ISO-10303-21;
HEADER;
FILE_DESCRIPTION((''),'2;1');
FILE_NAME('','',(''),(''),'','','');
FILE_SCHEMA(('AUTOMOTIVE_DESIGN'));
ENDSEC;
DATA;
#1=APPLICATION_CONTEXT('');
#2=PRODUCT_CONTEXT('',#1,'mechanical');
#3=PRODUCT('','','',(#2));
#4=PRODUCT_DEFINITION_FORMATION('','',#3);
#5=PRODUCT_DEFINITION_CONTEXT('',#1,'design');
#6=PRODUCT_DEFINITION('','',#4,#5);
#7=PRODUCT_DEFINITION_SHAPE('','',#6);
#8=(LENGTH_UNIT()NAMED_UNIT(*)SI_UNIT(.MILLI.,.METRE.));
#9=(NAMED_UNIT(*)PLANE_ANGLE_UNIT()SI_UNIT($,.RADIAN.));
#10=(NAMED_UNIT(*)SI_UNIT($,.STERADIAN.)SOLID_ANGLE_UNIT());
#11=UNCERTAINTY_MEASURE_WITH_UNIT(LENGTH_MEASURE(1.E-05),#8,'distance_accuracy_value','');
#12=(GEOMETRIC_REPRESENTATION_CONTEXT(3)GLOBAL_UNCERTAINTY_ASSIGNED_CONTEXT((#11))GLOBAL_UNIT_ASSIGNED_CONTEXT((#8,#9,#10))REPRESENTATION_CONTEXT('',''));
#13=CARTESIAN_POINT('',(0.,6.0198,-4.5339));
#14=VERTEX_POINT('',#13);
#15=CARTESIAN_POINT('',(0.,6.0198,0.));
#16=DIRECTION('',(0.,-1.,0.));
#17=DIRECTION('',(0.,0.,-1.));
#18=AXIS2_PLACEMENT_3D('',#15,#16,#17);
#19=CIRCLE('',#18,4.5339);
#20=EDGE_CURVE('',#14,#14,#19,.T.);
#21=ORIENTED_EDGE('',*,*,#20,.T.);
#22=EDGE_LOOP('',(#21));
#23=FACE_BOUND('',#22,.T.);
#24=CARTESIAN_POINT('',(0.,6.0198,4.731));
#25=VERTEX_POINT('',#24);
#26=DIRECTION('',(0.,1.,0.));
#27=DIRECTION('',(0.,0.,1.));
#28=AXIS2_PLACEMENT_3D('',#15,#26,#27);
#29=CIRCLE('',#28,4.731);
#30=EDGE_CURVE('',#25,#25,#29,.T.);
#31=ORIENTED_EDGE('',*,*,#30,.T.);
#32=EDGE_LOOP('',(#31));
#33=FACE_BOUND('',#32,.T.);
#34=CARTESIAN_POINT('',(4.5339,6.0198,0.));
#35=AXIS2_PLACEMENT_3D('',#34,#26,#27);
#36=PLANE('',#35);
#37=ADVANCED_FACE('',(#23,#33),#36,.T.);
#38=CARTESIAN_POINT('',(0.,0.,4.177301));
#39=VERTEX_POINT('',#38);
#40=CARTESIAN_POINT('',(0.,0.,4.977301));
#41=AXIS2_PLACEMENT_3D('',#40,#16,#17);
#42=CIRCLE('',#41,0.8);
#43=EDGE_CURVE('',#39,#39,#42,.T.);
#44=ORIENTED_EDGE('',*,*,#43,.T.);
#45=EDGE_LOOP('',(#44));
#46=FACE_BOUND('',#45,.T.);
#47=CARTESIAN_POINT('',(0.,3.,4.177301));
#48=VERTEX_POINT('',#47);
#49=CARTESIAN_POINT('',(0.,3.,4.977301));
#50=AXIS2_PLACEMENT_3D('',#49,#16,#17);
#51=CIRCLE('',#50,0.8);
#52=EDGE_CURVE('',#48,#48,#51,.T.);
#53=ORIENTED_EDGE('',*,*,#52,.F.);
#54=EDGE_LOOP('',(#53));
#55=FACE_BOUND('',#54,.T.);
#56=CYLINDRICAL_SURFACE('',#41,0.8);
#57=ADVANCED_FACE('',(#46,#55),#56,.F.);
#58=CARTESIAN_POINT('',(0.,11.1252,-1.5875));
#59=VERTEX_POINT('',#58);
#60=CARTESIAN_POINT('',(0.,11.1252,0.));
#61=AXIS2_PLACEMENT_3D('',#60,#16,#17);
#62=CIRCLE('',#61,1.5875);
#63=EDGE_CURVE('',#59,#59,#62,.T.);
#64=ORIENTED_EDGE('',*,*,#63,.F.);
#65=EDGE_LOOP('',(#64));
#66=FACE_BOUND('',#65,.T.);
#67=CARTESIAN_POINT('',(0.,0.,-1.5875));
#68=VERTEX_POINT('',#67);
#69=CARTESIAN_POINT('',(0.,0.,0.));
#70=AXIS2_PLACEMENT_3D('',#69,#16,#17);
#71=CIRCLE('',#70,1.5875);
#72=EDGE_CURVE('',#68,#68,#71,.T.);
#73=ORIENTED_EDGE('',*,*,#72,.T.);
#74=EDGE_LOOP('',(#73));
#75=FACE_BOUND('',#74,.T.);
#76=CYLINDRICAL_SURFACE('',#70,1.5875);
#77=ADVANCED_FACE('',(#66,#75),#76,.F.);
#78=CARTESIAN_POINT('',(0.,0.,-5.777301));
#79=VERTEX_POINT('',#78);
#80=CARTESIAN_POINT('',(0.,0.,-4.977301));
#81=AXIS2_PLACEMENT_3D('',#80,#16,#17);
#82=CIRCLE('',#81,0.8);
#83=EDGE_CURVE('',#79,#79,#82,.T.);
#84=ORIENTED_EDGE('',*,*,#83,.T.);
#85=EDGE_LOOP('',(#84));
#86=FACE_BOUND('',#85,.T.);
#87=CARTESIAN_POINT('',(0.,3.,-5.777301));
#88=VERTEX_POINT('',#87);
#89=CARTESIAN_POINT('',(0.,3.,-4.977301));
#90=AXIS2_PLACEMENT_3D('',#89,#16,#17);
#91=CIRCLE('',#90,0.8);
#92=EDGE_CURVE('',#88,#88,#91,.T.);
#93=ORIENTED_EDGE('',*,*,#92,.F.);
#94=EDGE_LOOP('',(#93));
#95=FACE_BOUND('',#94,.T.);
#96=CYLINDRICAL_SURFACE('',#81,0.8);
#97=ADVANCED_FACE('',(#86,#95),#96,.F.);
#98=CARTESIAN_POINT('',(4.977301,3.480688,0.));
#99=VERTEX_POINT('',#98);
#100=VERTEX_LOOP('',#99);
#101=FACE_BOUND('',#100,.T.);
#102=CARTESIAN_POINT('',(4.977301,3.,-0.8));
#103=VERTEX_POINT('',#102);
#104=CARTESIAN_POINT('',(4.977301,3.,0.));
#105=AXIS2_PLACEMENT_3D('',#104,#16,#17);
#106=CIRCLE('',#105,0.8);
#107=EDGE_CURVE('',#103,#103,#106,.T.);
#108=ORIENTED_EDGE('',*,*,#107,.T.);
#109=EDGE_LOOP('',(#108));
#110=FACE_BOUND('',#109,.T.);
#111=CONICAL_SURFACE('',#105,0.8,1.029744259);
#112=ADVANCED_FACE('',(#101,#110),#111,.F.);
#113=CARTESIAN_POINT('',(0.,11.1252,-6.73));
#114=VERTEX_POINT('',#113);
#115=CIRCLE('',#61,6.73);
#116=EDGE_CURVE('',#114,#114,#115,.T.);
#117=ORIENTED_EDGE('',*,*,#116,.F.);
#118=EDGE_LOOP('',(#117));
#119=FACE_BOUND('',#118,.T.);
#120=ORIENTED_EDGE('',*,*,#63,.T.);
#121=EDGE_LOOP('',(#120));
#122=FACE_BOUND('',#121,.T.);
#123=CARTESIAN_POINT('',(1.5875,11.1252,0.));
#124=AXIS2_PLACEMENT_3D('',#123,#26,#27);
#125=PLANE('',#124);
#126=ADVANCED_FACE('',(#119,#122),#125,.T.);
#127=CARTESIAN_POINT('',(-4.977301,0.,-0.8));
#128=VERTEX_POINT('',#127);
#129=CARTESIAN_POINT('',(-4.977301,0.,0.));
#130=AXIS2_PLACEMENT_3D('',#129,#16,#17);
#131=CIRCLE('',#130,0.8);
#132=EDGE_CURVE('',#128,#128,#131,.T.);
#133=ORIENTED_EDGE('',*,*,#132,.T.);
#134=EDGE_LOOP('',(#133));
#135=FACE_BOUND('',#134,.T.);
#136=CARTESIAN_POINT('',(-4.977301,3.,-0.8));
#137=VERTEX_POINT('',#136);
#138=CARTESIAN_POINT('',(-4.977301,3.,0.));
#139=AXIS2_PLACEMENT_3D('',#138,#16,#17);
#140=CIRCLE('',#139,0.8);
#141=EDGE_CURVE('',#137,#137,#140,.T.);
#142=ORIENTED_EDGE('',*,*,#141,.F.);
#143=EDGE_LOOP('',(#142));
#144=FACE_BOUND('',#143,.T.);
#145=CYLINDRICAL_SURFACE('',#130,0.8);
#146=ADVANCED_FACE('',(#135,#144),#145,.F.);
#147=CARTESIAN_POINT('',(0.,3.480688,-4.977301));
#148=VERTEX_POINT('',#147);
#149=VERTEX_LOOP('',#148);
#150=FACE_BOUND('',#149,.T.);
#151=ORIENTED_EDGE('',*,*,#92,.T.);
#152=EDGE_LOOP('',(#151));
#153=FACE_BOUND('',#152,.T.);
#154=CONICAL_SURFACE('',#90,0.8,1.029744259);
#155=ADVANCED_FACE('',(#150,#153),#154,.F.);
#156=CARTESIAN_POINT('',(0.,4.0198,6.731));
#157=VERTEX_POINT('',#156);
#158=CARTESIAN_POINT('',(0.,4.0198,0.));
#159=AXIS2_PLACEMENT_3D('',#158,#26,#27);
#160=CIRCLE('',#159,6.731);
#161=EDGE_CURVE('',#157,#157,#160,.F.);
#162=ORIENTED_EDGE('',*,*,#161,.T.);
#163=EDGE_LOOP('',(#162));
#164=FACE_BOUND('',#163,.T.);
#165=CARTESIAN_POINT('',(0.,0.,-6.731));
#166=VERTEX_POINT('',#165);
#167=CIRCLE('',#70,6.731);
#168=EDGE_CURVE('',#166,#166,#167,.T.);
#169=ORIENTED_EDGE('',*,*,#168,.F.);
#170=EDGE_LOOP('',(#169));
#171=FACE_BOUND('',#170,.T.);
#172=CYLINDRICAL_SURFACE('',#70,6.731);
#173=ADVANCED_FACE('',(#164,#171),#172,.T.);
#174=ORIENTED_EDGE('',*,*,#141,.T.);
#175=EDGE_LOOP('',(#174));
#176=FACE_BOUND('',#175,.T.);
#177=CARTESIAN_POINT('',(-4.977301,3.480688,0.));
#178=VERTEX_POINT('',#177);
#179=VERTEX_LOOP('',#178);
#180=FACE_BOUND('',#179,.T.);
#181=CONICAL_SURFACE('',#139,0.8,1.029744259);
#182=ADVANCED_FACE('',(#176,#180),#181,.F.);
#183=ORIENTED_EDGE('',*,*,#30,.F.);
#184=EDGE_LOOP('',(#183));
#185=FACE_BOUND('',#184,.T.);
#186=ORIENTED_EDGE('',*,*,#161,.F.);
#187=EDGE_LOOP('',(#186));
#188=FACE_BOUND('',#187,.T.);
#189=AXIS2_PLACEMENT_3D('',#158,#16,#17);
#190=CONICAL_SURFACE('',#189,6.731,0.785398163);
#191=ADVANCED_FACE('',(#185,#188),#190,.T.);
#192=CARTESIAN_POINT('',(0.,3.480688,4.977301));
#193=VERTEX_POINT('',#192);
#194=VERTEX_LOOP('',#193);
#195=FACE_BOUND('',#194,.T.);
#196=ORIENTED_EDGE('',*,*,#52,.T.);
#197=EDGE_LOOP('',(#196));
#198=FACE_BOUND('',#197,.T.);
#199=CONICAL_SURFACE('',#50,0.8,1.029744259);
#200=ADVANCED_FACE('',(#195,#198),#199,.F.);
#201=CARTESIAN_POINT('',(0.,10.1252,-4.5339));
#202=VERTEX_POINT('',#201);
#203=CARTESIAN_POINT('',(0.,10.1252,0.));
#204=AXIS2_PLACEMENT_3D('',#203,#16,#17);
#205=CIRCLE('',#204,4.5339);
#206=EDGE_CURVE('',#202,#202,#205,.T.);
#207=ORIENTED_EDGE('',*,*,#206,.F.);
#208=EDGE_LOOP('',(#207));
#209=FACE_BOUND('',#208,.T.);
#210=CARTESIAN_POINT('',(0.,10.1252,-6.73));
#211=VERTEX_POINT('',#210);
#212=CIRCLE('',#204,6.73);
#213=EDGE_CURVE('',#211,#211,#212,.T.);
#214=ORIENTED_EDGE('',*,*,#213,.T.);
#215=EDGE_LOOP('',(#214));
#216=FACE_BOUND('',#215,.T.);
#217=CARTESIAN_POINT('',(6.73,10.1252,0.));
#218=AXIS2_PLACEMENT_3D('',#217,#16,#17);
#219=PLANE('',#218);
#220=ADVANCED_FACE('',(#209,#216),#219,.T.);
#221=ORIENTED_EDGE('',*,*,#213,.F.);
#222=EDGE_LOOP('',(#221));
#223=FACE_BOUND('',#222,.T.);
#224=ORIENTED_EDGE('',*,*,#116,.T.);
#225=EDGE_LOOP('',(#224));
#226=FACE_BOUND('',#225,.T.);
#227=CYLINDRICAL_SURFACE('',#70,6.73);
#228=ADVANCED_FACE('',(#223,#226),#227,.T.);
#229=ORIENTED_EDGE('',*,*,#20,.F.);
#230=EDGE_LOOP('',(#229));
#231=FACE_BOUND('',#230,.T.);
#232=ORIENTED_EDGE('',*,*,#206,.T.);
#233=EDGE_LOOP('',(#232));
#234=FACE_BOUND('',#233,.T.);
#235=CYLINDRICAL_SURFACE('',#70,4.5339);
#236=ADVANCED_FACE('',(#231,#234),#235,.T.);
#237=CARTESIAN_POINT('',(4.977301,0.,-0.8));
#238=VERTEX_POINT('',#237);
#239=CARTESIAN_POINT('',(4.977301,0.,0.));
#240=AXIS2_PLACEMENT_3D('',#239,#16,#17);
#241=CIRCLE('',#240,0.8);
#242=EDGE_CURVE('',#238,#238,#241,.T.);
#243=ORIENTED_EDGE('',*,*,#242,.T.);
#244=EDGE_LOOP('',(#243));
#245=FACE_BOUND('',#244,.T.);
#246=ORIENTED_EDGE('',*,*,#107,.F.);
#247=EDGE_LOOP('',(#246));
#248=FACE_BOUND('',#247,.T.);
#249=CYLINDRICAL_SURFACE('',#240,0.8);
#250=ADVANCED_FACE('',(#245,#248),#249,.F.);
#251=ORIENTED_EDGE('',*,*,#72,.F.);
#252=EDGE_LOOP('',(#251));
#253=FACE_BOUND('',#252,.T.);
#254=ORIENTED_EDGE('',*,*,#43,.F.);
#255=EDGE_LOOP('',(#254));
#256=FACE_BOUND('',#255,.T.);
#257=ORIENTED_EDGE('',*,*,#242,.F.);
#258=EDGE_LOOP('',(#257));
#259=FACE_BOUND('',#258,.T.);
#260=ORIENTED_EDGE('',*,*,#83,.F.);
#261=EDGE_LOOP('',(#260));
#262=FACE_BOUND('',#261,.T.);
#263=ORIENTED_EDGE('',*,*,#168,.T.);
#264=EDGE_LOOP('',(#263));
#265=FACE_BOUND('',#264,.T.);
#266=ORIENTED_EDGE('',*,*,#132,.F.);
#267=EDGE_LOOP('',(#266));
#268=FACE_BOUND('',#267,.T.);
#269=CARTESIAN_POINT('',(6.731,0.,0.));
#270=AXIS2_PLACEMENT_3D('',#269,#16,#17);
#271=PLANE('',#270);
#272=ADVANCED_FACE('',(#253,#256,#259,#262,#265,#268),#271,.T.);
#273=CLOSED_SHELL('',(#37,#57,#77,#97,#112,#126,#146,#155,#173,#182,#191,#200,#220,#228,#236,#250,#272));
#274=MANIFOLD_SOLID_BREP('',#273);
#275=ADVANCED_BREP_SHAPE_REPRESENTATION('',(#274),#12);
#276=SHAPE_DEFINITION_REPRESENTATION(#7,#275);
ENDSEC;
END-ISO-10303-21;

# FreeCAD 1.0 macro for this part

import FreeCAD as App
import Part
import Sketcher


def edges_at(feature, points):
    """Names of the edges that pass closest to the given points."""
    edges = feature.Shape.Edges
    near = lambda p: min(range(len(edges)), key=lambda i: edges[i].distToShape(Part.Vertex(*p))[0])
    return sorted({f"Edge{near(p) + 1}" for p in points})


def add_polygon(sketch, points):
    """Adds a closed chain of lines whose ends are joined by coincident constraints."""
    first, n = sketch.GeometryCount, len(points)
    for a, b in zip(points, points[1:] + points[:1]):
        sketch.addGeometry(Part.LineSegment(App.Vector(*a, 0), App.Vector(*b, 0)), False)
    for i in range(n):
        sketch.addConstraint(Sketcher.Constraint("Coincident", first + i, 2, first + (i + 1) % n, 1))

doc = App.newDocument("Part")
body = doc.addObject("PartDesign::Body", "Body")

sketch1 = body.newObject("Sketcher::SketchObject", "Sketch")
sketch1.AttachmentSupport = (doc.getObject("XY_Plane"), [""])
sketch1.MapMode = "FlatFace"
add_polygon(sketch1, [(1.5875, 11.1252), (1.5875, 0), (6.731, 0), (6.731, 6.0198), (4.5339, 6.0198), (4.5339, 10.1252), (6.73, 10.1252), (6.73, 11.1252)])
sketch1.addConstraint([
    Sketcher.Constraint("Vertical", 0),
    Sketcher.Constraint("Horizontal", 1),
    Sketcher.Constraint("Vertical", 2),
    Sketcher.Constraint("Horizontal", 3),
    Sketcher.Constraint("Vertical", 4),
    Sketcher.Constraint("Horizontal", 5),
    Sketcher.Constraint("Vertical", 6),
    Sketcher.Constraint("Horizontal", 7),
    Sketcher.Constraint("PointOnObject", 0, 2, -1),
    Sketcher.Constraint("DistanceY", 6, 1, 6, 2, 1.0),
    Sketcher.Constraint("DistanceX", -1, 1, 5, 2, 6.73),
    Sketcher.Constraint("DistanceX", 1, 1, 1, 2, 5.1435),
    Sketcher.Constraint("DistanceX", 3, 2, 3, 1, 2.1971),
    Sketcher.Constraint("DistanceX", 5, 1, 5, 2, 2.1961),
    Sketcher.Constraint("DistanceY", 0, 2, 0, 1, 11.1252),
    Sketcher.Constraint("DistanceY", 2, 1, 2, 2, 6.0198),
])
revolution = body.newObject("PartDesign::Revolution", "Revolution")
revolution.Profile = sketch1
revolution.ReferenceAxis = (sketch1, ["V_Axis"])
revolution.Angle = 360
doc.recompute()

chamfer = body.newObject("PartDesign::Chamfer", "Chamfer")
chamfer.Base = (revolution, edges_at(revolution, [(0, 6.02, 6.731)]))
chamfer.Size = 2

sketch2 = body.newObject("Sketcher::SketchObject", "Sketch001")
sketch2.AttachmentSupport = (doc.getObject("XZ_Plane"), [""])
sketch2.MapMode = "FlatFace"
sketch2.addGeometry([
    Part.Circle(App.Vector(0, 4.977301, 0), App.Vector(0, 0, 1), 0.8),
    Part.Circle(App.Vector(4.977301, 0, 0), App.Vector(0, 0, 1), 0.8),
    Part.Circle(App.Vector(0, -4.977301, 0), App.Vector(0, 0, 1), 0.8),
    Part.Circle(App.Vector(-4.977301, 0, 0), App.Vector(0, 0, 1), 0.8),
    Part.Circle(App.Vector(0, 0, 0), App.Vector(0, 0, 1), 0.8),
], False)
sketch2.addConstraint([
    Sketcher.Constraint("Coincident", 4, 3, -1, 1),
    Sketcher.Constraint("Equal", 0, 1),
    Sketcher.Constraint("Equal", 1, 2),
    Sketcher.Constraint("Equal", 2, 3),
    Sketcher.Constraint("Equal", 3, 4),
    Sketcher.Constraint("Symmetric", 0, 3, 2, 3, -1, 1),
    Sketcher.Constraint("Symmetric", 1, 3, 3, 3, -1, 1),
    Sketcher.Constraint("PointOnObject", 0, 3, -2),
    Sketcher.Constraint("PointOnObject", 1, 3, -1),
    Sketcher.Constraint("Diameter", 0, 1.6),
    Sketcher.Constraint("DistanceY", -1, 1, 0, 3, 4.977301),
    Sketcher.Constraint("DistanceX", -1, 1, 1, 3, 4.977301),
])
doc.recompute()
hole = body.newObject("PartDesign::Hole", "Hole")
hole.Profile = sketch2
hole.ThreadType = "None"
hole.Diameter = 1.6
hole.DepthType = "Dimension"
hole.Depth = 3
hole.DrillPoint = "Angled"
hole.DrillPointAngle = 118

doc.recompute()
